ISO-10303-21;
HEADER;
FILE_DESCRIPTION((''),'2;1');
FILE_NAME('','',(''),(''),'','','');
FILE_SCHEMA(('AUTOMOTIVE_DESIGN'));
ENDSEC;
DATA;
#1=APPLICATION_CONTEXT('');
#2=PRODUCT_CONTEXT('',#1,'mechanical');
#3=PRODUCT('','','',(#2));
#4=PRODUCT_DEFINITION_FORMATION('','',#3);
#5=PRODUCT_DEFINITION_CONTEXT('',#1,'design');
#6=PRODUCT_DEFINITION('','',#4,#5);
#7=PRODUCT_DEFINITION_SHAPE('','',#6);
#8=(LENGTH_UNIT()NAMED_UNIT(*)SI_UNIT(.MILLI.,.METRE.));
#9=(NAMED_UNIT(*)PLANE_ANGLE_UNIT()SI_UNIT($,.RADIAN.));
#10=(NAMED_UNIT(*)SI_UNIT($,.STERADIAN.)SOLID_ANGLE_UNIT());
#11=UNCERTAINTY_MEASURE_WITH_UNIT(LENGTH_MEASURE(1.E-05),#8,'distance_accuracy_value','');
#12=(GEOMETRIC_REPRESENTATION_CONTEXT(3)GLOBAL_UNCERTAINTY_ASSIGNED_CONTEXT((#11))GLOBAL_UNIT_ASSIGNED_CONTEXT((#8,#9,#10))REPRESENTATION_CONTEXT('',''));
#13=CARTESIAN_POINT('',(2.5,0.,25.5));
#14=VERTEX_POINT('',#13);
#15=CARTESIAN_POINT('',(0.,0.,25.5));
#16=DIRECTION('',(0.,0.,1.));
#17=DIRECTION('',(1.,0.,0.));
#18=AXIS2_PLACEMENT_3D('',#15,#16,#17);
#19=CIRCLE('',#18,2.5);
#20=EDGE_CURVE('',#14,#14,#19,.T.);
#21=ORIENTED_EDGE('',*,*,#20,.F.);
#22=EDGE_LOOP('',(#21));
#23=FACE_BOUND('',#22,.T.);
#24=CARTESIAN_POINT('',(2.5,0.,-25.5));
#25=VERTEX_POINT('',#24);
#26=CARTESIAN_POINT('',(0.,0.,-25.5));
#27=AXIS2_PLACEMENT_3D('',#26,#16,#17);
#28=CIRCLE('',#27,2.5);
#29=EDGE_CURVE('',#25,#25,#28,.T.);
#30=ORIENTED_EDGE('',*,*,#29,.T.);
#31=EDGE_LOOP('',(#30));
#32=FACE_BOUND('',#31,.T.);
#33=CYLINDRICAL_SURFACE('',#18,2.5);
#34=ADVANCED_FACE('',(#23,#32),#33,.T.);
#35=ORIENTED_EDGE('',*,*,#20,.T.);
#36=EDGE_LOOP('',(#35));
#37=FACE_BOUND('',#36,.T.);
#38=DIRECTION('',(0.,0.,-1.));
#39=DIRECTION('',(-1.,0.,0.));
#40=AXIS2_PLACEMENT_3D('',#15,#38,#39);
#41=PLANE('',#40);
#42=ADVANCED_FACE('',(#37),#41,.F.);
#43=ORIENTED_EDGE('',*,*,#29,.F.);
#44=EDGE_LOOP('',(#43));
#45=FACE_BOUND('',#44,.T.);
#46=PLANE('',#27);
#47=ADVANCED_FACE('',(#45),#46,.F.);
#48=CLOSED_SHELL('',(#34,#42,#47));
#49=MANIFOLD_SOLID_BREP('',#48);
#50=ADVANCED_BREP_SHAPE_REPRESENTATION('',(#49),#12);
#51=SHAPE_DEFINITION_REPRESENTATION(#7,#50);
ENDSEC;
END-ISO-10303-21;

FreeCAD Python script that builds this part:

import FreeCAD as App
import Part
import Sketcher

V = App.Vector
Q = App.Units.Quantity


def add_polygon(sketch, points):
    """Adds a closed chain of lines whose ends are joined by coincident constraints."""
    first, n = sketch.GeometryCount, len(points)
    for a, b in zip(points, points[1:] + points[:1]):
        sketch.addGeometry(Part.LineSegment(App.Vector(*a, 0), App.Vector(*b, 0)), False)
    for i in range(n):
        sketch.addConstraint(Sketcher.Constraint("Coincident", first + i, 2, first + (i + 1) % n, 1))

doc = App.newDocument("Part")
params = doc.addObject("Spreadsheet::Sheet", "Params")
for row, (alias, value) in enumerate([
    ("sketch1_height", "51 mm"),
    ("sketch1_width", "2.5 mm"),
    ("revolution_angle", "360 deg"),
], start=1):
    params.set(f"A{row}", alias)
    params.set(f"B{row}", "=" + value)
    params.setAlias(f"B{row}", alias)

body = doc.addObject("PartDesign::Body", "Body")

# Sketch on YZ plane
sketch1 = body.newObject("Sketcher::SketchObject", "Sketch")
sketch1.AttachmentSupport = (doc.getObject("YZ_Plane"), [""])
sketch1.MapMode = "FlatFace"
add_polygon(sketch1, [(2.5, 25.5), (0, 25.5), (0, -25.5), (2.5, -25.5)])  # lines 0-3
sketch1.addConstraint([
    Sketcher.Constraint("Horizontal", 0),
    Sketcher.Constraint("Vertical", 1),
    Sketcher.Constraint("Horizontal", 2),
    Sketcher.Constraint("Vertical", 3),
    Sketcher.Constraint("Symmetric", 0, 2, 1, 2, -1, 1),
    Sketcher.Constraint("DistanceY", 1, 2, 1, 1, Q("51 mm")),
    Sketcher.Constraint("DistanceX", 0, 2, 0, 1, Q("2.5 mm")),
])
sketch1.setExpression("Constraints[9]", "Params.sketch1_height")
sketch1.setExpression("Constraints[10]", "Params.sketch1_width")
revolution = body.newObject("PartDesign::Revolution", "Revolution")
revolution.Profile = sketch1
revolution.ReferenceAxis = (sketch1, ["V_Axis"])
revolution.setExpression("Angle", "Params.revolution_angle")

doc.recompute()
